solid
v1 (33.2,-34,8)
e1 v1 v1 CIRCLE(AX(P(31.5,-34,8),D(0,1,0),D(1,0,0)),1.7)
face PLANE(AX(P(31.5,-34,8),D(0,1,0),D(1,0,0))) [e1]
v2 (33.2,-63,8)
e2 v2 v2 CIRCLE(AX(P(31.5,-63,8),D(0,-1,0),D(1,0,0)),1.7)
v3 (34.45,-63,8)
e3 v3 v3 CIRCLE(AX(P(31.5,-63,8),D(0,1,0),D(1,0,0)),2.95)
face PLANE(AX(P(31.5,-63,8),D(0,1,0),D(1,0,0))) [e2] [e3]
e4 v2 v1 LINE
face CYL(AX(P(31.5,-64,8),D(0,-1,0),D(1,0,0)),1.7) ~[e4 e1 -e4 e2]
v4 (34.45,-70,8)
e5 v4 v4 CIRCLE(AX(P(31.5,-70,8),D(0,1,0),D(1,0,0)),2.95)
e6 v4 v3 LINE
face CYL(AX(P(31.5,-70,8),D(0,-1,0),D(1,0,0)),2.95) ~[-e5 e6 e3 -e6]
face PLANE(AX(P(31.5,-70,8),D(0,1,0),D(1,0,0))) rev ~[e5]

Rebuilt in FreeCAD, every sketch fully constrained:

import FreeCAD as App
import Part
import Sketcher

V = App.Vector

doc = App.newDocument("Part")
body = doc.addObject("PartDesign::Body", "Body")

# Sketch on XY plane
sketch1 = body.newObject("Sketcher::SketchObject", "Sketch")
sketch1.AttachmentSupport = (doc.getObject("XY_Plane"), [""])
sketch1.MapMode = "FlatFace"
sketch1.addGeometry(Part.Circle(V(0, 0, 0), V(0, 0, 1), 3), False)
sketch1.addConstraint([
    Sketcher.Constraint("Coincident", 0, 3, -1, 1),
    Sketcher.Constraint("Diameter", 0, 5.9),
])
pad1 = body.newObject("PartDesign::Pad", "Pad")
pad1.Profile = sketch1
pad1.Length = 7
body2 = doc.addObject("PartDesign::Body", "Body001")

# Sketch on XY plane
sketch2 = body2.newObject("Sketcher::SketchObject", "Sketch001")
sketch2.AttachmentSupport = (doc.getObject("XY_Plane001"), [""])
sketch2.MapMode = "FlatFace"
sketch2.AttachmentOffset = App.Placement(V(0, 0, 6), App.Rotation())
sketch2.addGeometry(Part.Circle(V(0, 0, 0), V(0, 0, 1), 1.7), False)
sketch2.addConstraint([
    Sketcher.Constraint("Coincident", 0, 3, -1, 1),
    Sketcher.Constraint("Diameter", 0, 3.4),
])
pad2 = body2.newObject("PartDesign::Pad", "Pad001")
pad2.Profile = sketch2
pad2.Length = 30
doc.recompute()

boolean = body2.newObject("PartDesign::Boolean", "Boolean")
boolean.Type = "Fuse"
boolean.addObjects([body])
body3 = doc.addObject("PartDesign::Body", "Body002")
doc.recompute()

body2.Placement = App.Placement(V(0, 0, 0), App.Rotation(V(1, 0, 0), 270))
boolean2 = body3.newObject("PartDesign::Boolean", "Boolean001")
boolean2.Type = "Fuse"
boolean2.addObjects([body2])
body4 = doc.addObject("PartDesign::Body", "Body003")
doc.recompute()

body3.Placement = App.Placement(V(31.5, -70, 8), App.Rotation(V(0, 0, 1), 0))
boolean3 = body4.newObject("PartDesign::Boolean", "Boolean002")
boolean3.Type = "Fuse"
boolean3.addObjects([body3])

doc.recompute()
